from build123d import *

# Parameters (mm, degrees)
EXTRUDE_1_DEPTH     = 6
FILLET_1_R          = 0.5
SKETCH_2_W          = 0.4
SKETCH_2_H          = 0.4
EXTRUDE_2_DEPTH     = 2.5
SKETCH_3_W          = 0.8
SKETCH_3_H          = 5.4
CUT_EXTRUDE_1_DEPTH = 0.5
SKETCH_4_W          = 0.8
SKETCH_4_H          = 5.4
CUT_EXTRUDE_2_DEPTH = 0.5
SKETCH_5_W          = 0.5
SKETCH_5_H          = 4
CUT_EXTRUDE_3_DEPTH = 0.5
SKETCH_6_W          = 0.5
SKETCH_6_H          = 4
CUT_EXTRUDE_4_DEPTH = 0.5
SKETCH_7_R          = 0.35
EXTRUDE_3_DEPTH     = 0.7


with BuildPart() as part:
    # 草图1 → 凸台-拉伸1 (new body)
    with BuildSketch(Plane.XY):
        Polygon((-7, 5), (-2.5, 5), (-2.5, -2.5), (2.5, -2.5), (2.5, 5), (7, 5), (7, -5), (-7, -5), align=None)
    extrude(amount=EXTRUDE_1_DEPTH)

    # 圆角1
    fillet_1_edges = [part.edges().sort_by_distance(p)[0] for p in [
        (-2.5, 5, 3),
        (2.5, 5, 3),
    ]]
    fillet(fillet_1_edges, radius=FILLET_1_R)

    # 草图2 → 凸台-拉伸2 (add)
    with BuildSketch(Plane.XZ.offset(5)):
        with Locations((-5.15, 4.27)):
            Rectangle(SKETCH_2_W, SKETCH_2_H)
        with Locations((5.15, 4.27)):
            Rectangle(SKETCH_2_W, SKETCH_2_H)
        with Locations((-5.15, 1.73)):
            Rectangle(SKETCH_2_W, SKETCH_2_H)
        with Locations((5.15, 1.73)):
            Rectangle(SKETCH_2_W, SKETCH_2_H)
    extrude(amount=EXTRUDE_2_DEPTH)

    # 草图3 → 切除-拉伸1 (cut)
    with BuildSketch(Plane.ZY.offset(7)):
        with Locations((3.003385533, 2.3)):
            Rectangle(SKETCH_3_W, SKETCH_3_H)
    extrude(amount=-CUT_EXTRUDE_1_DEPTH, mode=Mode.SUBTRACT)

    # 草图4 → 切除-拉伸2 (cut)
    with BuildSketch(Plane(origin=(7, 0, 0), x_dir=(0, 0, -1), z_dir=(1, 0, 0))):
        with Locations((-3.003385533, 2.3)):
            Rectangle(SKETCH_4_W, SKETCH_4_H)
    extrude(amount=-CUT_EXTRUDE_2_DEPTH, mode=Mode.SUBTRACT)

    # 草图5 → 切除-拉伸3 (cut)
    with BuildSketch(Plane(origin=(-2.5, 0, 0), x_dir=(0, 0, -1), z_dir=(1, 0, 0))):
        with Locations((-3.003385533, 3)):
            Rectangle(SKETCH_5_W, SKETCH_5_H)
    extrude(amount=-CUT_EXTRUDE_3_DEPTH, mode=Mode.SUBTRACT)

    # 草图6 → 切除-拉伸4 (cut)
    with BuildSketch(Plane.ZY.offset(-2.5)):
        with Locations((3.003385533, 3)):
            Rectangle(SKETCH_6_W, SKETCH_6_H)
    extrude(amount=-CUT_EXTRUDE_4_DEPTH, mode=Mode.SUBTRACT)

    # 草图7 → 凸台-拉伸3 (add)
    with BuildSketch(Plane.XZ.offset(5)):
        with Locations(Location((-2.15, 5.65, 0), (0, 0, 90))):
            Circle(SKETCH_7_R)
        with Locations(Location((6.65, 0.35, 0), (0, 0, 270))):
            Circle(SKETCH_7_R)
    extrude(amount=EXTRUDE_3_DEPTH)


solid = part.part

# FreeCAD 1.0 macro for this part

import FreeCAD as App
import Part
import Sketcher
from FreeCAD import Vector


def edges_at(feature, points):
    """Names of the edges that pass closest to the given points."""
    edges = feature.Shape.Edges
    near = lambda p: min(range(len(edges)), key=lambda i: edges[i].distToShape(Part.Vertex(*p))[0])
    return sorted({f"Edge{near(p) + 1}" for p in points})

doc = App.newDocument("Part")
body = doc.addObject("PartDesign::Body", "Body")

# Sketch on XY plane
sketch1 = doc.addObject("Sketcher::SketchObject", "Sketch")
body.addObject(sketch1)
sketch1.AttachmentSupport = (doc.XY_Plane, [""])
sketch1.MapMode = "FlatFace"
sketch1.addGeometry([
    Part.LineSegment(Vector(-2.5, 5, 0), Vector(-7, 5, 0)),  # 0
    Part.LineSegment(Vector(-7, 5, 0), Vector(-7, -5, 0)),  # 1
    Part.LineSegment(Vector(-7, -5, 0), Vector(7, -5, 0)),  # 2
    Part.LineSegment(Vector(7, -5, 0), Vector(7, 5, 0)),  # 3
    Part.LineSegment(Vector(7, 5, 0), Vector(2.5, 5, 0)),  # 4
    Part.LineSegment(Vector(2.5, 5, 0), Vector(2.5, -2.5, 0)),  # 5
    Part.LineSegment(Vector(2.5, -2.5, 0), Vector(-2.5, -2.5, 0)),  # 6
    Part.LineSegment(Vector(-2.5, -2.5, 0), Vector(-2.5, 5, 0)),  # 7
], False)
sketch1.addConstraint([
    Sketcher.Constraint("Coincident", 0, 2, 1, 1),
    Sketcher.Constraint("Coincident", 1, 2, 2, 1),
    Sketcher.Constraint("Coincident", 2, 2, 3, 1),
    Sketcher.Constraint("Coincident", 3, 2, 4, 1),
    Sketcher.Constraint("Coincident", 4, 2, 5, 1),
    Sketcher.Constraint("Coincident", 5, 2, 6, 1),
    Sketcher.Constraint("Coincident", 6, 2, 7, 1),
    Sketcher.Constraint("Coincident", 7, 2, 0, 1),
    Sketcher.Constraint("Horizontal", 0),
    Sketcher.Constraint("Vertical", 1),
    Sketcher.Constraint("Horizontal", 2),
    Sketcher.Constraint("Vertical", 3),
    Sketcher.Constraint("Horizontal", 4),
    Sketcher.Constraint("Vertical", 5),
    Sketcher.Constraint("Horizontal", 6),
    Sketcher.Constraint("Vertical", 7),
    Sketcher.Constraint("Symmetric", 0, 2, 2, 2, -1, 1),
    Sketcher.Constraint("Symmetric", 4, 2, 7, 2, -2),
    Sketcher.Constraint("DistanceX", 2, 1, 2, 2, 14.0),
    Sketcher.Constraint("DistanceX", 6, 2, 6, 1, 5.0),
    Sketcher.Constraint("DistanceY", 1, 2, 1, 1, 10.0),
    Sketcher.Constraint("DistanceY", 5, 2, 5, 1, 7.5),
])
pad1 = doc.addObject("PartDesign::Pad", "Pad")
body.addObject(pad1)
pad1.Profile = sketch1
pad1.Length = 6
doc.recompute()

fillet = doc.addObject("PartDesign::Fillet", "Fillet")
body.addObject(fillet)
fillet.Base = (pad1, edges_at(pad1, [(-2.5, 5, 3), (2.5, 5, 3)]))
fillet.Radius = 0.5

# Sketch on XZ plane
sketch2 = doc.addObject("Sketcher::SketchObject", "Sketch001")
body.addObject(sketch2)
sketch2.AttachmentSupport = (doc.XZ_Plane, [""])
sketch2.MapMode = "FlatFace"
sketch2.AttachmentOffset = App.Placement(Vector(0, 0, 5), App.Rotation())
sketch2.addGeometry([
    Part.LineSegment(Vector(-5.35, 4.47, 0), Vector(-5.35, 4.07, 0)),  # 0
    Part.LineSegment(Vector(-5.35, 4.07, 0), Vector(-4.95, 4.07, 0)),  # 1
    Part.LineSegment(Vector(-4.95, 4.07, 0), Vector(-4.95, 4.47, 0)),  # 2
    Part.LineSegment(Vector(-4.95, 4.47, 0), Vector(-5.35, 4.47, 0)),  # 3
    Part.LineSegment(Vector(4.95, 4.47, 0), Vector(4.95, 4.07, 0)),  # 4
    Part.LineSegment(Vector(4.95, 4.07, 0), Vector(5.35, 4.07, 0)),  # 5
    Part.LineSegment(Vector(5.35, 4.07, 0), Vector(5.35, 4.47, 0)),  # 6
    Part.LineSegment(Vector(5.35, 4.47, 0), Vector(4.95, 4.47, 0)),  # 7
    Part.LineSegment(Vector(-5.35, 1.93, 0), Vector(-5.35, 1.53, 0)),  # 8
    Part.LineSegment(Vector(-5.35, 1.53, 0), Vector(-4.95, 1.53, 0)),  # 9
    Part.LineSegment(Vector(-4.95, 1.53, 0), Vector(-4.95, 1.93, 0)),  # 10
    Part.LineSegment(Vector(-4.95, 1.93, 0), Vector(-5.35, 1.93, 0)),  # 11
    Part.LineSegment(Vector(4.95, 1.93, 0), Vector(4.95, 1.53, 0)),  # 12
    Part.LineSegment(Vector(4.95, 1.53, 0), Vector(5.35, 1.53, 0)),  # 13
    Part.LineSegment(Vector(5.35, 1.53, 0), Vector(5.35, 1.93, 0)),  # 14
    Part.LineSegment(Vector(5.35, 1.93, 0), Vector(4.95, 1.93, 0)),  # 15
], False)
sketch2.addConstraint([
    Sketcher.Constraint("Coincident", 0, 2, 1, 1),
    Sketcher.Constraint("Coincident", 1, 2, 2, 1),
    Sketcher.Constraint("Coincident", 2, 2, 3, 1),
    Sketcher.Constraint("Coincident", 3, 2, 0, 1),
    Sketcher.Constraint("Coincident", 4, 2, 5, 1),
    Sketcher.Constraint("Coincident", 5, 2, 6, 1),
    Sketcher.Constraint("Coincident", 6, 2, 7, 1),
    Sketcher.Constraint("Coincident", 7, 2, 4, 1),
    Sketcher.Constraint("Coincident", 8, 2, 9, 1),
    Sketcher.Constraint("Coincident", 9, 2, 10, 1),
    Sketcher.Constraint("Coincident", 10, 2, 11, 1),
    Sketcher.Constraint("Coincident", 11, 2, 8, 1),
    Sketcher.Constraint("Coincident", 12, 2, 13, 1),
    Sketcher.Constraint("Coincident", 13, 2, 14, 1),
    Sketcher.Constraint("Coincident", 14, 2, 15, 1),
    Sketcher.Constraint("Coincident", 15, 2, 12, 1),
    Sketcher.Constraint("Vertical", 0),
    Sketcher.Constraint("Horizontal", 1),
    Sketcher.Constraint("Vertical", 2),
    Sketcher.Constraint("Horizontal", 3),
    Sketcher.Constraint("Vertical", 4),
    Sketcher.Constraint("Horizontal", 5),
    Sketcher.Constraint("Vertical", 6),
    Sketcher.Constraint("Horizontal", 7),
    Sketcher.Constraint("Vertical", 8),
    Sketcher.Constraint("Horizontal", 9),
    Sketcher.Constraint("Vertical", 10),
    Sketcher.Constraint("Horizontal", 11),
    Sketcher.Constraint("Vertical", 12),
    Sketcher.Constraint("Horizontal", 13),
    Sketcher.Constraint("Vertical", 14),
    Sketcher.Constraint("Horizontal", 15),
    Sketcher.Constraint("Symmetric", 1, 2, 4, 2, -2),
    Sketcher.Constraint("Symmetric", 3, 2, 6, 2, -2),
    Sketcher.Constraint("Symmetric", 9, 2, 12, 2, -2),
    Sketcher.Constraint("Symmetric", 11, 2, 14, 2, -2),
    Sketcher.Constraint("Vertical", 3, 2, 8, 2),
    Sketcher.Constraint("Vertical", 2, 2, 9, 2),
    Sketcher.Constraint("Equal", 15, 0),
    Sketcher.Constraint("Equal", 6, 8),
    Sketcher.Constraint("DistanceX", 1, 1, 1, 2, 0.4),
    Sketcher.Constraint("DistanceX", 1, 2, 4, 2, 9.9),
    Sketcher.Constraint("DistanceY", -1, 1, 0, 2, 4.07),
    Sketcher.Constraint("DistanceY", -1, 1, 8, 2, 1.53),
])
pad2 = doc.addObject("PartDesign::Pad", "Pad001")
body.addObject(pad2)
pad2.Profile = sketch2
pad2.Length = 2.5

# Sketch on YZ plane
sketch3 = doc.addObject("Sketcher::SketchObject", "Sketch002")
body.addObject(sketch3)
sketch3.AttachmentSupport = (doc.YZ_Plane, [""])
sketch3.MapMode = "FlatFace"
sketch3.AttachmentOffset = App.Placement(Vector(0, 0, -7), App.Rotation())
sketch3.addGeometry([
    Part.LineSegment(Vector(5, 2.6, 0), Vector(-0.4, 2.6, 0)),
    Part.LineSegment(Vector(-0.4, 2.6, 0), Vector(-0.4, 3.4, 0)),
    Part.LineSegment(Vector(-0.4, 3.4, 0), Vector(5, 3.4, 0)),
    Part.LineSegment(Vector(5, 3.4, 0), Vector(5, 2.6, 0)),
], False)
sketch3.addConstraint([
    Sketcher.Constraint("Coincident", 0, 2, 1, 1),
    Sketcher.Constraint("Coincident", 1, 2, 2, 1),
    Sketcher.Constraint("Coincident", 2, 2, 3, 1),
    Sketcher.Constraint("Coincident", 3, 2, 0, 1),
    Sketcher.Constraint("Horizontal", 0),
    Sketcher.Constraint("Vertical", 1),
    Sketcher.Constraint("Horizontal", 2),
    Sketcher.Constraint("Vertical", 3),
    Sketcher.Constraint("DistanceX", 0, 2, 0, 1, 5.4),
    Sketcher.Constraint("DistanceY", 1, 1, 1, 2, 0.8),
    Sketcher.Constraint("DistanceX", -1, 1, 2, 2, 5.0),
    Sketcher.Constraint("DistanceY", -1, 1, 0, 2, 2.603386),
])
pocket1 = doc.addObject("PartDesign::Pocket", "Pocket")
body.addObject(pocket1)
pocket1.Profile = sketch3
pocket1.Length = 0.5
pocket1.Reversed = True

# Sketch on YZ plane
sketch4 = doc.addObject("Sketcher::SketchObject", "Sketch003")
body.addObject(sketch4)
sketch4.AttachmentSupport = (doc.YZ_Plane, [""])
sketch4.MapMode = "FlatFace"
sketch4.AttachmentOffset = App.Placement(Vector(0, 0, 7), App.Rotation())
sketch4.addGeometry([
    Part.LineSegment(Vector(5, 3.4, 0), Vector(-0.4, 3.4, 0)),
    Part.LineSegment(Vector(-0.4, 3.4, 0), Vector(-0.4, 2.6, 0)),
    Part.LineSegment(Vector(-0.4, 2.6, 0), Vector(5, 2.6, 0)),
    Part.LineSegment(Vector(5, 2.6, 0), Vector(5, 3.4, 0)),
], False)
sketch4.addConstraint([
    Sketcher.Constraint("Coincident", 0, 2, 1, 1),
    Sketcher.Constraint("Coincident", 1, 2, 2, 1),
    Sketcher.Constraint("Coincident", 2, 2, 3, 1),
    Sketcher.Constraint("Coincident", 3, 2, 0, 1),
    Sketcher.Constraint("Horizontal", 0),
    Sketcher.Constraint("Vertical", 1),
    Sketcher.Constraint("Horizontal", 2),
    Sketcher.Constraint("Vertical", 3),
    Sketcher.Constraint("DistanceX", 0, 2, 0, 1, 5.4),
    Sketcher.Constraint("DistanceY", 1, 2, 1, 1, 0.8),
    Sketcher.Constraint("DistanceX", -1, 1, 2, 2, 5.0),
    Sketcher.Constraint("DistanceY", -1, 1, 0, 2, 3.403386),
])
pocket2 = doc.addObject("PartDesign::Pocket", "Pocket001")
body.addObject(pocket2)
pocket2.Profile = sketch4
pocket2.Length = 0.5

# Sketch on YZ plane
sketch5 = doc.addObject("Sketcher::SketchObject", "Sketch004")
body.addObject(sketch5)
sketch5.AttachmentSupport = (doc.YZ_Plane, [""])
sketch5.MapMode = "FlatFace"
sketch5.AttachmentOffset = App.Placement(Vector(0, 0, -2.5), App.Rotation())
sketch5.addGeometry([
    Part.LineSegment(Vector(5, 3.3, 0), Vector(1, 3.3, 0)),
    Part.LineSegment(Vector(1, 3.3, 0), Vector(1, 2.8, 0)),
    Part.LineSegment(Vector(1, 2.8, 0), Vector(5, 2.8, 0)),
    Part.LineSegment(Vector(5, 2.8, 0), Vector(5, 3.3, 0)),
], False)
sketch5.addConstraint([
    Sketcher.Constraint("Coincident", 0, 2, 1, 1),
    Sketcher.Constraint("Coincident", 1, 2, 2, 1),
    Sketcher.Constraint("Coincident", 2, 2, 3, 1),
    Sketcher.Constraint("Coincident", 3, 2, 0, 1),
    Sketcher.Constraint("Horizontal", 0),
    Sketcher.Constraint("Vertical", 1),
    Sketcher.Constraint("Horizontal", 2),
    Sketcher.Constraint("Vertical", 3),
    Sketcher.Constraint("DistanceX", 0, 2, 0, 1, 4.0),
    Sketcher.Constraint("DistanceY", 1, 2, 1, 1, 0.5),
    Sketcher.Constraint("DistanceX", -1, 1, 0, 2, 1.0),
    Sketcher.Constraint("DistanceY", -1, 1, 0, 2, 3.253386),
])
pocket3 = doc.addObject("PartDesign::Pocket", "Pocket002")
body.addObject(pocket3)
pocket3.Profile = sketch5
pocket3.Length = 0.5

# Sketch on YZ plane
sketch6 = doc.addObject("Sketcher::SketchObject", "Sketch005")
body.addObject(sketch6)
sketch6.AttachmentSupport = (doc.YZ_Plane, [""])
sketch6.MapMode = "FlatFace"
sketch6.AttachmentOffset = App.Placement(Vector(0, 0, 2.5), App.Rotation())
sketch6.addGeometry([
    Part.LineSegment(Vector(5, 2.8, 0), Vector(1, 2.8, 0)),
    Part.LineSegment(Vector(1, 2.8, 0), Vector(1, 3.3, 0)),
    Part.LineSegment(Vector(1, 3.3, 0), Vector(5, 3.3, 0)),
    Part.LineSegment(Vector(5, 3.3, 0), Vector(5, 2.8, 0)),
], False)
sketch6.addConstraint([
    Sketcher.Constraint("Coincident", 0, 2, 1, 1),
    Sketcher.Constraint("Coincident", 1, 2, 2, 1),
    Sketcher.Constraint("Coincident", 2, 2, 3, 1),
    Sketcher.Constraint("Coincident", 3, 2, 0, 1),
    Sketcher.Constraint("Horizontal", 0),
    Sketcher.Constraint("Vertical", 1),
    Sketcher.Constraint("Horizontal", 2),
    Sketcher.Constraint("Vertical", 3),
    Sketcher.Constraint("DistanceX", 0, 2, 0, 1, 4.0),
    Sketcher.Constraint("DistanceY", 1, 1, 1, 2, 0.5),
    Sketcher.Constraint("DistanceX", -1, 1, 0, 2, 1.0),
    Sketcher.Constraint("DistanceY", -1, 1, 0, 2, 2.753386),
])
pocket4 = doc.addObject("PartDesign::Pocket", "Pocket003")
body.addObject(pocket4)
pocket4.Profile = sketch6
pocket4.Length = 0.5
pocket4.Reversed = True

# Sketch on XZ plane
sketch7 = doc.addObject("Sketcher::SketchObject", "Sketch006")
body.addObject(sketch7)
sketch7.AttachmentSupport = (doc.XZ_Plane, [""])
sketch7.MapMode = "FlatFace"
sketch7.AttachmentOffset = App.Placement(Vector(0, 0, 5), App.Rotation())
sketch7.addGeometry([
    Part.Circle(Vector(-2.15, 5.65, 0), Vector(0, 0, 1), 0.35),
    Part.Circle(Vector(6.65, 0.35, 0), Vector(0, 0, 1), 0.35),
], False)
sketch7.addConstraint([
    Sketcher.Constraint("Equal", 0, 1),
    Sketcher.Constraint("Diameter", 0, 0.7),
    Sketcher.Constraint("DistanceX", 0, 3, 1, 3, 8.8),
    Sketcher.Constraint("DistanceY", 1, 3, 0, 3, 5.3),
    Sketcher.Constraint("DistanceX", 0, 3, -1, 1, 2.15),
    Sketcher.Constraint("DistanceY", -1, 1, 0, 3, 5.65),
])
pad3 = doc.addObject("PartDesign::Pad", "Pad002")
body.addObject(pad3)
pad3.Profile = sketch7
pad3.Length = 0.7

doc.recompute()
